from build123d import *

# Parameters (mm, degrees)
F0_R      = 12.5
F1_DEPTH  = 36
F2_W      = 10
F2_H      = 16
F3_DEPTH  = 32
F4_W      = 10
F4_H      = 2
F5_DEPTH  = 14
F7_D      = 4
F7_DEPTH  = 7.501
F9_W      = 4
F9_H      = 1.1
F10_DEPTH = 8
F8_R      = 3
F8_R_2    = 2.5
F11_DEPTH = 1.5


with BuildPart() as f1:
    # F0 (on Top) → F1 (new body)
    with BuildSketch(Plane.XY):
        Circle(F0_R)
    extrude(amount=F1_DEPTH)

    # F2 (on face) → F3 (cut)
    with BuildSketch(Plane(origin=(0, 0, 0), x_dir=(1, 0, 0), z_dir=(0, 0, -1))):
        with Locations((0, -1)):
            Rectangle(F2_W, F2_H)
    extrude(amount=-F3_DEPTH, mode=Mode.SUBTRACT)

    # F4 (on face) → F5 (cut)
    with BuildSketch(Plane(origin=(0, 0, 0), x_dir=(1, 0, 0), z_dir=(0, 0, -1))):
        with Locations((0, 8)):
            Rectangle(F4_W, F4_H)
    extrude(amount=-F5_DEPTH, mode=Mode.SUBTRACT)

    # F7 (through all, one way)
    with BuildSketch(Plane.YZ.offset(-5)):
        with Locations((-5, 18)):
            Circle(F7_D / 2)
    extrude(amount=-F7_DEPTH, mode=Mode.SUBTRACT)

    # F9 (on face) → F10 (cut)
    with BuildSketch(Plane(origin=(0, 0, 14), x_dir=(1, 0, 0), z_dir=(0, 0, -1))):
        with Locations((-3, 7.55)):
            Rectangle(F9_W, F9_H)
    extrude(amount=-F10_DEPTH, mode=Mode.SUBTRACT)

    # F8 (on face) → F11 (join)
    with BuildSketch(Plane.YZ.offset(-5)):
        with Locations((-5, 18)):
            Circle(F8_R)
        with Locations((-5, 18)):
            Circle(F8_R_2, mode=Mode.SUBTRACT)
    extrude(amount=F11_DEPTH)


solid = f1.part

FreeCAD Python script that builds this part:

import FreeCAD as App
import Part
import Sketcher
from FreeCAD import Vector
Q = App.Units.Quantity

doc = App.newDocument("Part")
body = doc.addObject("PartDesign::Body", "Body")

# Sketch on XY plane
sketch1 = body.newObject("Sketcher::SketchObject", "Sketch")
sketch1.AttachmentSupport = (doc.getObject("XY_Plane"), [""])
sketch1.MapMode = "FlatFace"
sketch1.addGeometry(Part.Circle(Vector(0, 0, 0), Vector(0, 0, 1), 12), False)
sketch1.addConstraint([
    Sketcher.Constraint("Coincident", 0, 3, -1, 1),
    Sketcher.Constraint("Diameter", 0, Q("25 mm")),
])
pad1 = body.newObject("PartDesign::Pad", "Pad")
pad1.Profile = sketch1
pad1.Length = 36

# Sketch on XY plane
sketch2 = body.newObject("Sketcher::SketchObject", "Sketch001")
sketch2.AttachmentSupport = (doc.getObject("XY_Plane"), [""])
sketch2.MapMode = "FlatFace"
sketch2.addGeometry([
    Part.LineSegment(Vector(-5, -7, 0), Vector(-5, 9, 0)),
    Part.LineSegment(Vector(-5, 9, 0), Vector(5, 9, 0)),
    Part.LineSegment(Vector(5, 9, 0), Vector(5, -7, 0)),
    Part.LineSegment(Vector(5, -7, 0), Vector(-5, -7, 0)),
], False)
sketch2.addConstraint([
    Sketcher.Constraint("Coincident", 0, 2, 1, 1),
    Sketcher.Constraint("Coincident", 1, 2, 2, 1),
    Sketcher.Constraint("Coincident", 2, 2, 3, 1),
    Sketcher.Constraint("Coincident", 3, 2, 0, 1),
    Sketcher.Constraint("Vertical", 0),
    Sketcher.Constraint("Horizontal", 1),
    Sketcher.Constraint("Vertical", 2),
    Sketcher.Constraint("Horizontal", 3),
    Sketcher.Constraint("DistanceX", 1, 1, 1, 2, Q("10 mm")),
    Sketcher.Constraint("DistanceY", 0, 1, 0, 2, Q("16 mm")),
    Sketcher.Constraint("DistanceX", 0, 2, -1, 1, Q("5 mm")),
    Sketcher.Constraint("DistanceY", -1, 1, 0, 2, Q("9 mm")),
])
pocket1 = body.newObject("PartDesign::Pocket", "Pocket")
pocket1.Profile = sketch2
pocket1.Length = 32
pocket1.Reversed = True

# Sketch on XY plane
sketch3 = body.newObject("Sketcher::SketchObject", "Sketch002")
sketch3.AttachmentSupport = (doc.getObject("XY_Plane"), [""])
sketch3.MapMode = "FlatFace"
sketch3.addGeometry([
    Part.LineSegment(Vector(-5, -9, 0), Vector(-5, -7, 0)),
    Part.LineSegment(Vector(-5, -7, 0), Vector(5, -7, 0)),
    Part.LineSegment(Vector(5, -7, 0), Vector(5, -9, 0)),
    Part.LineSegment(Vector(5, -9, 0), Vector(-5, -9, 0)),
], False)
sketch3.addConstraint([
    Sketcher.Constraint("Coincident", 0, 2, 1, 1),
    Sketcher.Constraint("Coincident", 1, 2, 2, 1),
    Sketcher.Constraint("Coincident", 2, 2, 3, 1),
    Sketcher.Constraint("Coincident", 3, 2, 0, 1),
    Sketcher.Constraint("Vertical", 0),
    Sketcher.Constraint("Horizontal", 1),
    Sketcher.Constraint("Vertical", 2),
    Sketcher.Constraint("Horizontal", 3),
    Sketcher.Constraint("DistanceX", 1, 1, 1, 2, Q("10 mm")),
    Sketcher.Constraint("DistanceY", 0, 1, 0, 2, Q("2 mm")),
    Sketcher.Constraint("DistanceX", 0, 2, -1, 1, Q("5 mm")),
    Sketcher.Constraint("DistanceY", 0, 2, -1, 1, Q("7 mm")),
])
pocket2 = body.newObject("PartDesign::Pocket", "Pocket001")
pocket2.Profile = sketch3
pocket2.Length = 14
pocket2.Reversed = True

# Sketch on YZ plane
sketch4 = body.newObject("Sketcher::SketchObject", "Sketch003")
sketch4.AttachmentSupport = (doc.getObject("YZ_Plane"), [""])
sketch4.MapMode = "FlatFace"
sketch4.AttachmentOffset = App.Placement(Vector(0, 0, -5), App.Rotation())
sketch4.addGeometry(Part.Circle(Vector(-5, 18, 0), Vector(0, 0, 1), 2), False)
sketch4.addConstraint([
    Sketcher.Constraint("Diameter", 0, Q("4 mm")),
    Sketcher.Constraint("DistanceX", 0, 3, -1, 1, Q("5 mm")),
    Sketcher.Constraint("DistanceY", -1, 1, 0, 3, Q("18 mm")),
])
pocket3 = body.newObject("PartDesign::Pocket", "Pocket002")
pocket3.Profile = sketch4
pocket3.Type = "ThroughAll"

# Sketch on XY plane
sketch5 = body.newObject("Sketcher::SketchObject", "Sketch004")
sketch5.AttachmentSupport = (doc.getObject("XY_Plane"), [""])
sketch5.MapMode = "FlatFace"
sketch5.AttachmentOffset = App.Placement(Vector(0, 0, 14), App.Rotation())
sketch5.addGeometry([
    Part.LineSegment(Vector(-5, -8.1, 0), Vector(-5, -7, 0)),
    Part.LineSegment(Vector(-5, -7, 0), Vector(-1, -7, 0)),
    Part.LineSegment(Vector(-1, -7, 0), Vector(-1, -8.1, 0)),
    Part.LineSegment(Vector(-1, -8.1, 0), Vector(-5, -8.1, 0)),
], False)
sketch5.addConstraint([
    Sketcher.Constraint("Coincident", 0, 2, 1, 1),
    Sketcher.Constraint("Coincident", 1, 2, 2, 1),
    Sketcher.Constraint("Coincident", 2, 2, 3, 1),
    Sketcher.Constraint("Coincident", 3, 2, 0, 1),
    Sketcher.Constraint("Vertical", 0),
    Sketcher.Constraint("Horizontal", 1),
    Sketcher.Constraint("Vertical", 2),
    Sketcher.Constraint("Horizontal", 3),
    Sketcher.Constraint("DistanceX", 1, 1, 1, 2, Q("4 mm")),
    Sketcher.Constraint("DistanceY", 0, 1, 0, 2, Q("1.1 mm")),
    Sketcher.Constraint("DistanceX", 0, 2, -1, 1, Q("5 mm")),
    Sketcher.Constraint("DistanceY", 0, 2, -1, 1, Q("7 mm")),
])
pocket4 = body.newObject("PartDesign::Pocket", "Pocket003")
pocket4.Profile = sketch5
pocket4.Length = 8
pocket4.Reversed = True

# Sketch on YZ plane
sketch6 = body.newObject("Sketcher::SketchObject", "Sketch005")
sketch6.AttachmentSupport = (doc.getObject("YZ_Plane"), [""])
sketch6.MapMode = "FlatFace"
sketch6.AttachmentOffset = App.Placement(Vector(0, 0, -5), App.Rotation())
sketch6.addGeometry([
    Part.Circle(Vector(-5, 18, 0), Vector(0, 0, 1), 3),
    Part.Circle(Vector(-5, 18, 0), Vector(0, 0, 1), 2.5),
], False)
sketch6.addConstraint([
    Sketcher.Constraint("Coincident", 1, 3, 0, 3),
    Sketcher.Constraint("Diameter", 0, Q("6 mm")),
    Sketcher.Constraint("Diameter", 1, Q("5 mm")),
    Sketcher.Constraint("DistanceX", 0, 3, -1, 1, Q("5 mm")),
    Sketcher.Constraint("DistanceY", -1, 1, 0, 3, Q("18 mm")),
])
pad2 = body.newObject("PartDesign::Pad", "Pad001")
pad2.Profile = sketch6
pad2.Length = 1.5

doc.recompute()
